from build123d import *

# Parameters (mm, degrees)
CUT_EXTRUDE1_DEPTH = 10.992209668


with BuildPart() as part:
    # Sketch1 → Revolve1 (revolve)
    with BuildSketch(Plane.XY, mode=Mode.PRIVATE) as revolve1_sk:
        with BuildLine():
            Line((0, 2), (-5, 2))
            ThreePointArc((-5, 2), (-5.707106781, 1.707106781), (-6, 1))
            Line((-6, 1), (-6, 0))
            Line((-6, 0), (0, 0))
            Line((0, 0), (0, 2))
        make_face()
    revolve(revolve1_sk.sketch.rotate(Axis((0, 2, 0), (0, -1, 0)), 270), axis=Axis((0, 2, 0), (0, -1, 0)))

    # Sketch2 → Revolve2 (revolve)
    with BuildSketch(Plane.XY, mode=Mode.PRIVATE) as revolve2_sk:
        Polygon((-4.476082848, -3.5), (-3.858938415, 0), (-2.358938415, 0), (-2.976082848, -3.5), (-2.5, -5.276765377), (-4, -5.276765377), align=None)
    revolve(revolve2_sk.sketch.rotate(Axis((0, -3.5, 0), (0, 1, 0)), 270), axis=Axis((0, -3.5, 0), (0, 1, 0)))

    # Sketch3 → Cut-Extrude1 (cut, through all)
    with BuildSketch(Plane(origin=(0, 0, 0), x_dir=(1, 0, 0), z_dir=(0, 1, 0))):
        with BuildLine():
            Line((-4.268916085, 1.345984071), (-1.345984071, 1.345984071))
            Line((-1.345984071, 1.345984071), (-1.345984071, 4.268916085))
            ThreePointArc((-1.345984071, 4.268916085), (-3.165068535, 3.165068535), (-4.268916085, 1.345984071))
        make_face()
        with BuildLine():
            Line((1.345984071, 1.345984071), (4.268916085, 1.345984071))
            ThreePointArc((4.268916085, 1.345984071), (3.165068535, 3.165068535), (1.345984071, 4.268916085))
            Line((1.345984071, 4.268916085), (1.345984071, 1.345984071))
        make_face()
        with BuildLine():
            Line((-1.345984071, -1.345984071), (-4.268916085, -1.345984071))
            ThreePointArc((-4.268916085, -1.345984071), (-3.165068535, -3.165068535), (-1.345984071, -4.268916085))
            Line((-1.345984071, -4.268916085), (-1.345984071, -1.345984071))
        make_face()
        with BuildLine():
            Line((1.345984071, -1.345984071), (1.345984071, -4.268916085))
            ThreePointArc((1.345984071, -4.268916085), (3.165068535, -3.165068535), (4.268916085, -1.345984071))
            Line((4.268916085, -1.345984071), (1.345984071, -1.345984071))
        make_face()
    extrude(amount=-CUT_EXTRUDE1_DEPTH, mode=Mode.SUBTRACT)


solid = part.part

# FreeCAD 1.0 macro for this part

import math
import FreeCAD as App
import Part
import Sketcher

V = App.Vector
Q = App.Units.Quantity


def add_polygon(sketch, points):
    """Adds a closed chain of lines whose ends are joined by coincident constraints."""
    first, n = sketch.GeometryCount, len(points)
    for a, b in zip(points, points[1:] + points[:1]):
        sketch.addGeometry(Part.LineSegment(App.Vector(*a, 0), App.Vector(*b, 0)), False)
    for i in range(n):
        sketch.addConstraint(Sketcher.Constraint("Coincident", first + i, 2, first + (i + 1) % n, 1))

doc = App.newDocument("Part")
body = doc.addObject("PartDesign::Body", "Body")

sketch1 = body.newObject("Sketcher::SketchObject", "Sketch")
sketch1.AttachmentSupport = (doc.getObject("XY_Plane"), [""])
sketch1.MapMode = "FlatFace"
sketch1.addGeometry([
    Part.LineSegment(V(0, 2, 0), V(-5, 2, 0)),
    Part.ArcOfCircle(Part.Circle(V(-5, 1, 0), V(0, 0, 1), 1), math.radians(90), math.radians(180)),
    Part.LineSegment(V(-6, 1, 0), V(-6, 0, 0)),
    Part.LineSegment(V(-6, 0, 0), V(0, 0, 0)),
    Part.LineSegment(V(0, 0, 0), V(0, 2, 0)),
], False)
sketch1.addConstraint([
    Sketcher.Constraint("Tangent", 0, 2, 1, 1),
    Sketcher.Constraint("Tangent", 1, 2, 2, 1),
    Sketcher.Constraint("Coincident", 2, 2, 3, 1),
    Sketcher.Constraint("Coincident", 3, 2, 4, 1),
    Sketcher.Constraint("Coincident", 4, 2, 0, 1),
    Sketcher.Constraint("Horizontal", 0),
    Sketcher.Constraint("Vertical", 2),
    Sketcher.Constraint("Horizontal", 3),
    Sketcher.Constraint("Vertical", 4),
    Sketcher.Constraint("Coincident", 3, 2, -1, 1),
    Sketcher.Constraint("Radius", 1, 1.0),
    Sketcher.Constraint("DistanceX", 0, 2, 0, 1, 5.0),
    Sketcher.Constraint("DistanceY", 2, 2, 2, 1, 1.0),
])
revolution = body.newObject("PartDesign::Revolution", "Revolution")
revolution.Profile = sketch1
revolution.ReferenceAxis = (sketch1, ["V_Axis"])
revolution.Angle = 360

sketch2 = body.newObject("Sketcher::SketchObject", "Sketch001")
sketch2.AttachmentSupport = (doc.getObject("XY_Plane"), [""])
sketch2.MapMode = "FlatFace"
add_polygon(sketch2, [(-3.9, 0), (-4.5, -3.5), (-4, -5.3), (-2.5, -5.3), (-3, -3.5), (-2.4, 0)])
sketch2.addConstraint([
    Sketcher.Constraint("Horizontal", 2),
    Sketcher.Constraint("Horizontal", 5),
    Sketcher.Constraint("PointOnObject", 4, 2, -1),
    Sketcher.Constraint("Parallel", 1, 3),
    Sketcher.Constraint("Parallel", 0, 4),
    Sketcher.Constraint("Horizontal", 0, 2, 3, 2),
    Sketcher.Constraint("Angle", 0, Q("-100 deg")),
    Sketcher.Constraint("Angle", 1, Q("-75 deg")),
    Sketcher.Constraint("DistanceX", 2, 1, 2, 2, 1.5),
    Sketcher.Constraint("DistanceX", 1, 2, -1, 1, 4.0),
    Sketcher.Constraint("DistanceY", 0, 2, -1, 1, 3.5),
    Sketcher.Constraint("DistanceX", 4, 2, -1, 1, 2.358938),
])
revolution2 = body.newObject("PartDesign::Revolution", "Revolution001")
revolution2.Profile = sketch2
revolution2.ReferenceAxis = (sketch2, ["V_Axis"])
revolution2.Angle = 360

sketch3 = body.newObject("Sketcher::SketchObject", "Sketch002")
sketch3.AttachmentSupport = (doc.getObject("XZ_Plane"), [""])
sketch3.MapMode = "FlatFace"
sketch3.addGeometry([
    Part.LineSegment(V(-4.3, -1.3, 0), V(-1.3, -1.3, 0)),
    Part.LineSegment(V(-1.3, -1.3, 0), V(-1.3, -4.3, 0)),
    Part.ArcOfCircle(Part.Circle(V(0, 0, 0), V(0, 0, 1), 4.5), math.radians(-163), math.radians(-107)),
    Part.LineSegment(V(1.3, -1.3, 0), V(4.3, -1.3, 0)),
    Part.ArcOfCircle(Part.Circle(V(0, 0, 0), V(0, 0, 1), 4.5), math.radians(-73), math.radians(-17)),
    Part.LineSegment(V(1.3, -4.3, 0), V(1.3, -1.3, 0)),
    Part.LineSegment(V(-1.3, 1.3, 0), V(-4.3, 1.3, 0)),
    Part.ArcOfCircle(Part.Circle(V(0, 0, 0), V(0, 0, 1), 4.5), math.radians(107), math.radians(163)),
    Part.LineSegment(V(-1.3, 4.3, 0), V(-1.3, 1.3, 0)),
    Part.LineSegment(V(1.3, 1.3, 0), V(1.3, 4.3, 0)),
    Part.ArcOfCircle(Part.Circle(V(0, 0, 0), V(0, 0, 1), 4.5), math.radians(17), math.radians(73)),
    Part.LineSegment(V(4.3, 1.3, 0), V(1.3, 1.3, 0)),
], False)
sketch3.addConstraint([
    Sketcher.Constraint("Coincident", 0, 2, 1, 1),
    Sketcher.Constraint("Coincident", 1, 2, 2, 2),
    Sketcher.Constraint("Coincident", 2, 1, 0, 1),
    Sketcher.Constraint("Coincident", 3, 2, 4, 2),
    Sketcher.Constraint("Coincident", 4, 1, 5, 1),
    Sketcher.Constraint("Coincident", 5, 2, 3, 1),
    Sketcher.Constraint("Coincident", 6, 2, 7, 2),
    Sketcher.Constraint("Coincident", 7, 1, 8, 1),
    Sketcher.Constraint("Coincident", 8, 2, 6, 1),
    Sketcher.Constraint("Coincident", 9, 2, 10, 2),
    Sketcher.Constraint("Coincident", 10, 1, 11, 1),
    Sketcher.Constraint("Coincident", 11, 2, 9, 1),
    Sketcher.Constraint("Horizontal", 0),
    Sketcher.Constraint("Vertical", 1),
    Sketcher.Constraint("Horizontal", 3),
    Sketcher.Constraint("Vertical", 5),
    Sketcher.Constraint("Horizontal", 6),
    Sketcher.Constraint("Vertical", 8),
    Sketcher.Constraint("Vertical", 9),
    Sketcher.Constraint("Horizontal", 11),
    Sketcher.Constraint("Coincident", 2, 3, -1, 1),
    Sketcher.Constraint("Coincident", 4, 3, -1, 1),
    Sketcher.Constraint("Coincident", 7, 3, -1, 1),
    Sketcher.Constraint("Coincident", 10, 3, -1, 1),
    Sketcher.Constraint("Equal", 2, 4),
    Sketcher.Constraint("Equal", 4, 7),
    Sketcher.Constraint("Equal", 7, 10),
    Sketcher.Constraint("Symmetric", 5, 2, 8, 2, -1, 1),
    Sketcher.Constraint("Symmetric", 0, 2, 11, 2, -1, 1),
    Sketcher.Constraint("Symmetric", 0, 2, 5, 2, -2),
    Sketcher.Constraint("Equal", 11, 1),
    Sketcher.Constraint("Radius", 2, 4.476083),
    Sketcher.Constraint("DistanceX", 0, 2, 3, 2, 5.6149),
])
pocket1 = body.newObject("PartDesign::Pocket", "Pocket")
pocket1.Profile = sketch3
pocket1.Type = "ThroughAll"
pocket1.Reversed = True

doc.recompute()
